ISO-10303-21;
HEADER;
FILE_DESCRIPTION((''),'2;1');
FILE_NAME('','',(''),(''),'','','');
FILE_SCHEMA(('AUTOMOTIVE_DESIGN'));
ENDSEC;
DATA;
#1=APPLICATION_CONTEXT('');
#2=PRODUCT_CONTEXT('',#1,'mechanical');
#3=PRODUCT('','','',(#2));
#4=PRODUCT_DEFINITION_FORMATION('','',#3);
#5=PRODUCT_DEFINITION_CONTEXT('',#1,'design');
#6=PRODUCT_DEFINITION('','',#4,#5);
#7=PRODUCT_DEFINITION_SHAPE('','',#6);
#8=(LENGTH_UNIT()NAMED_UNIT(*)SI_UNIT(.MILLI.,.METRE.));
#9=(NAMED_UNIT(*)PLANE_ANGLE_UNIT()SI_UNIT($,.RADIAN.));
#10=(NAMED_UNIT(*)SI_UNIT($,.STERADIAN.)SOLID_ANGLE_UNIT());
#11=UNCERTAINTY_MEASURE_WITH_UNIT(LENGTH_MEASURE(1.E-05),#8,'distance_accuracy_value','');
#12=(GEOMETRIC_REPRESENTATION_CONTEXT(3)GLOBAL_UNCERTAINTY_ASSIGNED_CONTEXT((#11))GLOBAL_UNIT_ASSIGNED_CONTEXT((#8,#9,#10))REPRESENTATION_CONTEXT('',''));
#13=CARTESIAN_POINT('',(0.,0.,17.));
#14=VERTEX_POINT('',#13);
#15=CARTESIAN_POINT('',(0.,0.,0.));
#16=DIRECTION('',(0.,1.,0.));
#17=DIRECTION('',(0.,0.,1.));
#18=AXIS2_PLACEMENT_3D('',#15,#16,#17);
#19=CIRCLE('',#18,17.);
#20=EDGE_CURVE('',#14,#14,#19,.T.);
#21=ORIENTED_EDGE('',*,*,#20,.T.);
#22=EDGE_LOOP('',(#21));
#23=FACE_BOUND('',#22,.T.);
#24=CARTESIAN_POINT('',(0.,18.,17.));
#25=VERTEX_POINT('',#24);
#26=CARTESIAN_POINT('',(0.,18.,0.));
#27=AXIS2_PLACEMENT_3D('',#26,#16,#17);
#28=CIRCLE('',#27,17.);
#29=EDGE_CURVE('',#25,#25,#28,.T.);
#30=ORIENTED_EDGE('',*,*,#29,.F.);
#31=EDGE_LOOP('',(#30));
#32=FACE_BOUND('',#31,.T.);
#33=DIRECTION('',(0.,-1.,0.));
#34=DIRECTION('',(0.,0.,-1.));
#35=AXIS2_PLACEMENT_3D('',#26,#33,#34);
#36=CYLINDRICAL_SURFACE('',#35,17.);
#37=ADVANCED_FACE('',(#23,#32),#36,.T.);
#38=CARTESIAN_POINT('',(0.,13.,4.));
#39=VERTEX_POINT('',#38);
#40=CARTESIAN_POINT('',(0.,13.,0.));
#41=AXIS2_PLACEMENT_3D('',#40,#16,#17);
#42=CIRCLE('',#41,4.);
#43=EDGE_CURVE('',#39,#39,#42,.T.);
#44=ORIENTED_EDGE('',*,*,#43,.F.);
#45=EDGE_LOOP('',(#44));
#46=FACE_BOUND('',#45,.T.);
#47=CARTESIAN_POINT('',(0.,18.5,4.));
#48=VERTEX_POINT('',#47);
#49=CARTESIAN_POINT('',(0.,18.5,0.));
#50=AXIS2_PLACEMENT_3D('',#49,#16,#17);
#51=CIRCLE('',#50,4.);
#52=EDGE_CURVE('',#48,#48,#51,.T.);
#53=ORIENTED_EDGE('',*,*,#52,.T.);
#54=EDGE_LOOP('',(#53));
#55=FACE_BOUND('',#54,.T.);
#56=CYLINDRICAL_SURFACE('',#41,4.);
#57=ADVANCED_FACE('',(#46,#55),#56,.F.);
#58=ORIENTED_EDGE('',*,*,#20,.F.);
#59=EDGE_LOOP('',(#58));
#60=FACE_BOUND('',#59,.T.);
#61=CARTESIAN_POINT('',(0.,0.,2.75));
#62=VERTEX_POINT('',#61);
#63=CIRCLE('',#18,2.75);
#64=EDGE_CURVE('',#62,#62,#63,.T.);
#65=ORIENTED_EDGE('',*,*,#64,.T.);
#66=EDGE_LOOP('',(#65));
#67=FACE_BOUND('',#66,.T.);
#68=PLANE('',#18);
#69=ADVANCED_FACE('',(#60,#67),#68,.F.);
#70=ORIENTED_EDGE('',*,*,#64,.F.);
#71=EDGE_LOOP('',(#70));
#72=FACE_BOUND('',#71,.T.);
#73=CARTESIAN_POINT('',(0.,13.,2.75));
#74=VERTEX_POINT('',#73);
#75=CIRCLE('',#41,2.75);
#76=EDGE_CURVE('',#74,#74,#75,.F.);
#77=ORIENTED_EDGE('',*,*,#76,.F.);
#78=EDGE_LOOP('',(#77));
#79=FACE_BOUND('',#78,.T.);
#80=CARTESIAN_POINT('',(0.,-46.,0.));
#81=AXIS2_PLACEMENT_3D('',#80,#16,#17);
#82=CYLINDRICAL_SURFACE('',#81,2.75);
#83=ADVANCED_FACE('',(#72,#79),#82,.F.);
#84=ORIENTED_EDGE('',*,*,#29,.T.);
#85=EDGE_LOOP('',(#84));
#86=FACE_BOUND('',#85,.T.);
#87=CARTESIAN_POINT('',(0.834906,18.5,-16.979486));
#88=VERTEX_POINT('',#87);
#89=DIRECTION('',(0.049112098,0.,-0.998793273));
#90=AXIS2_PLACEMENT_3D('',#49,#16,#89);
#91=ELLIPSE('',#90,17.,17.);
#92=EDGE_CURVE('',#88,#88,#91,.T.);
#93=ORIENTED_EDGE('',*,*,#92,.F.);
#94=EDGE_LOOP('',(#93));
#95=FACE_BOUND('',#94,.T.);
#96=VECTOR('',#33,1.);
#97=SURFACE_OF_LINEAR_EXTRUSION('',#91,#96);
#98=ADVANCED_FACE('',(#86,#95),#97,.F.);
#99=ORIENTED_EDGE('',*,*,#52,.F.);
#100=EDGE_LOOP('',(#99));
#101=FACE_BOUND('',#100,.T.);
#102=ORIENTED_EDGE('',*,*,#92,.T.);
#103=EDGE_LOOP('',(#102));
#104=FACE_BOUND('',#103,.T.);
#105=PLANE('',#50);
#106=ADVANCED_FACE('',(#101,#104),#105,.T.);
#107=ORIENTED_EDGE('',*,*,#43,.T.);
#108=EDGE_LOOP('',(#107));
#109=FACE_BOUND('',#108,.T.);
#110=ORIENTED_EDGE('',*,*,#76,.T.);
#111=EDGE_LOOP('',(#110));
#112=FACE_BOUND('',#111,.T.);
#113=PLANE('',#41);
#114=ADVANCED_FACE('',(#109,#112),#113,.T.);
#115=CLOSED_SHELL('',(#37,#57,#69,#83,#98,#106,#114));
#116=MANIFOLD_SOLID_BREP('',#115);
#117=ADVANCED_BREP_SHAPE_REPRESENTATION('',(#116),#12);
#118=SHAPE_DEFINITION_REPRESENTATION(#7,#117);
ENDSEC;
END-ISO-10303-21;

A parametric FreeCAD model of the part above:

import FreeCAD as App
import Part
import Sketcher

V = App.Vector
Q = App.Units.Quantity

doc = App.newDocument("Part")
body = doc.addObject("PartDesign::Body", "Body")

sketch1 = body.newObject("Sketcher::SketchObject", "Sketch")
sketch1.AttachmentSupport = (doc.getObject("XZ_Plane"), [""])
sketch1.MapMode = "FlatFace"
sketch1.addGeometry(Part.Circle(V(0, 0, 0), V(0, 0, 1), 17), False)
sketch1.addConstraint([
    Sketcher.Constraint("Coincident", 0, 3, -1, 1),
    Sketcher.Constraint("Diameter", 0, Q("34 mm")),
])
pad1 = body.newObject("PartDesign::Pad", "Pad")
pad1.Profile = sketch1
pad1.Length = 18
pad1.Reversed = True

sketch2 = body.newObject("Sketcher::SketchObject", "Sketch001")
sketch2.AttachmentSupport = (doc.getObject("XZ_Plane"), [""])
sketch2.MapMode = "FlatFace"
sketch2.AttachmentOffset = App.Placement(V(0, 0, -18), App.Rotation())
sketch2.addGeometry(Part.Circle(V(0, 0, 0), V(0, 0, 1), 2.8), False)
sketch2.addConstraint([
    Sketcher.Constraint("Coincident", 0, 3, -1, 1),
    Sketcher.Constraint("Diameter", 0, Q("5.5 mm")),
])
pocket1 = body.newObject("PartDesign::Pocket", "Pocket")
pocket1.Profile = sketch2
pocket1.Length = 64
pocket1.Reversed = True

sketch3 = body.newObject("Sketcher::SketchObject", "Sketch002")
sketch3.AttachmentSupport = (doc.getObject("XZ_Plane"), [""])
sketch3.MapMode = "FlatFace"
sketch3.AttachmentOffset = App.Placement(V(0, 0, -18), App.Rotation())
sketch3.addGeometry(Part.Circle(V(0, 0, 0), V(0, 0, 1), 4), False)
sketch3.addConstraint([
    Sketcher.Constraint("Coincident", 0, 3, -1, 1),
    Sketcher.Constraint("Diameter", 0, Q("8 mm")),
])
pocket2 = body.newObject("PartDesign::Pocket", "Pocket001")
pocket2.Profile = sketch3
pocket2.Length = 5
pocket2.Reversed = True

sketch4 = body.newObject("Sketcher::SketchObject", "Sketch003")
sketch4.AttachmentSupport = (doc.getObject("XZ_Plane"), [""])
sketch4.MapMode = "FlatFace"
sketch4.AttachmentOffset = App.Placement(V(0, 0, -18), App.Rotation())
sketch4.addGeometry(Part.Ellipse(V(16.979486, 0.834906, 0), V(-0.834906, 16.979486, 0), V(0, 0, 0)), False)
sketch4.addConstraint(Sketcher.Constraint("Block", 0))
pad2 = body.newObject("PartDesign::Pad", "Pad001")
pad2.Profile = sketch4
pad2.Length = 0.5
pad2.Reversed = True

sketch5 = body.newObject("Sketcher::SketchObject", "Sketch004")
sketch5.AttachmentSupport = (doc.getObject("XZ_Plane"), [""])
sketch5.MapMode = "FlatFace"
sketch5.AttachmentOffset = App.Placement(V(0, 0, -18.5), App.Rotation())
sketch5.addGeometry(Part.Circle(V(0, 0, 0), V(0, 0, 1), 4), False)
sketch5.addConstraint([
    Sketcher.Constraint("Coincident", 0, 3, -1, 1),
    Sketcher.Constraint("Diameter", 0, Q("8 mm")),
])
pocket3 = body.newObject("PartDesign::Pocket", "Pocket002")
pocket3.Profile = sketch5
pocket3.Length = 0.5
pocket3.Reversed = True

doc.recompute()
